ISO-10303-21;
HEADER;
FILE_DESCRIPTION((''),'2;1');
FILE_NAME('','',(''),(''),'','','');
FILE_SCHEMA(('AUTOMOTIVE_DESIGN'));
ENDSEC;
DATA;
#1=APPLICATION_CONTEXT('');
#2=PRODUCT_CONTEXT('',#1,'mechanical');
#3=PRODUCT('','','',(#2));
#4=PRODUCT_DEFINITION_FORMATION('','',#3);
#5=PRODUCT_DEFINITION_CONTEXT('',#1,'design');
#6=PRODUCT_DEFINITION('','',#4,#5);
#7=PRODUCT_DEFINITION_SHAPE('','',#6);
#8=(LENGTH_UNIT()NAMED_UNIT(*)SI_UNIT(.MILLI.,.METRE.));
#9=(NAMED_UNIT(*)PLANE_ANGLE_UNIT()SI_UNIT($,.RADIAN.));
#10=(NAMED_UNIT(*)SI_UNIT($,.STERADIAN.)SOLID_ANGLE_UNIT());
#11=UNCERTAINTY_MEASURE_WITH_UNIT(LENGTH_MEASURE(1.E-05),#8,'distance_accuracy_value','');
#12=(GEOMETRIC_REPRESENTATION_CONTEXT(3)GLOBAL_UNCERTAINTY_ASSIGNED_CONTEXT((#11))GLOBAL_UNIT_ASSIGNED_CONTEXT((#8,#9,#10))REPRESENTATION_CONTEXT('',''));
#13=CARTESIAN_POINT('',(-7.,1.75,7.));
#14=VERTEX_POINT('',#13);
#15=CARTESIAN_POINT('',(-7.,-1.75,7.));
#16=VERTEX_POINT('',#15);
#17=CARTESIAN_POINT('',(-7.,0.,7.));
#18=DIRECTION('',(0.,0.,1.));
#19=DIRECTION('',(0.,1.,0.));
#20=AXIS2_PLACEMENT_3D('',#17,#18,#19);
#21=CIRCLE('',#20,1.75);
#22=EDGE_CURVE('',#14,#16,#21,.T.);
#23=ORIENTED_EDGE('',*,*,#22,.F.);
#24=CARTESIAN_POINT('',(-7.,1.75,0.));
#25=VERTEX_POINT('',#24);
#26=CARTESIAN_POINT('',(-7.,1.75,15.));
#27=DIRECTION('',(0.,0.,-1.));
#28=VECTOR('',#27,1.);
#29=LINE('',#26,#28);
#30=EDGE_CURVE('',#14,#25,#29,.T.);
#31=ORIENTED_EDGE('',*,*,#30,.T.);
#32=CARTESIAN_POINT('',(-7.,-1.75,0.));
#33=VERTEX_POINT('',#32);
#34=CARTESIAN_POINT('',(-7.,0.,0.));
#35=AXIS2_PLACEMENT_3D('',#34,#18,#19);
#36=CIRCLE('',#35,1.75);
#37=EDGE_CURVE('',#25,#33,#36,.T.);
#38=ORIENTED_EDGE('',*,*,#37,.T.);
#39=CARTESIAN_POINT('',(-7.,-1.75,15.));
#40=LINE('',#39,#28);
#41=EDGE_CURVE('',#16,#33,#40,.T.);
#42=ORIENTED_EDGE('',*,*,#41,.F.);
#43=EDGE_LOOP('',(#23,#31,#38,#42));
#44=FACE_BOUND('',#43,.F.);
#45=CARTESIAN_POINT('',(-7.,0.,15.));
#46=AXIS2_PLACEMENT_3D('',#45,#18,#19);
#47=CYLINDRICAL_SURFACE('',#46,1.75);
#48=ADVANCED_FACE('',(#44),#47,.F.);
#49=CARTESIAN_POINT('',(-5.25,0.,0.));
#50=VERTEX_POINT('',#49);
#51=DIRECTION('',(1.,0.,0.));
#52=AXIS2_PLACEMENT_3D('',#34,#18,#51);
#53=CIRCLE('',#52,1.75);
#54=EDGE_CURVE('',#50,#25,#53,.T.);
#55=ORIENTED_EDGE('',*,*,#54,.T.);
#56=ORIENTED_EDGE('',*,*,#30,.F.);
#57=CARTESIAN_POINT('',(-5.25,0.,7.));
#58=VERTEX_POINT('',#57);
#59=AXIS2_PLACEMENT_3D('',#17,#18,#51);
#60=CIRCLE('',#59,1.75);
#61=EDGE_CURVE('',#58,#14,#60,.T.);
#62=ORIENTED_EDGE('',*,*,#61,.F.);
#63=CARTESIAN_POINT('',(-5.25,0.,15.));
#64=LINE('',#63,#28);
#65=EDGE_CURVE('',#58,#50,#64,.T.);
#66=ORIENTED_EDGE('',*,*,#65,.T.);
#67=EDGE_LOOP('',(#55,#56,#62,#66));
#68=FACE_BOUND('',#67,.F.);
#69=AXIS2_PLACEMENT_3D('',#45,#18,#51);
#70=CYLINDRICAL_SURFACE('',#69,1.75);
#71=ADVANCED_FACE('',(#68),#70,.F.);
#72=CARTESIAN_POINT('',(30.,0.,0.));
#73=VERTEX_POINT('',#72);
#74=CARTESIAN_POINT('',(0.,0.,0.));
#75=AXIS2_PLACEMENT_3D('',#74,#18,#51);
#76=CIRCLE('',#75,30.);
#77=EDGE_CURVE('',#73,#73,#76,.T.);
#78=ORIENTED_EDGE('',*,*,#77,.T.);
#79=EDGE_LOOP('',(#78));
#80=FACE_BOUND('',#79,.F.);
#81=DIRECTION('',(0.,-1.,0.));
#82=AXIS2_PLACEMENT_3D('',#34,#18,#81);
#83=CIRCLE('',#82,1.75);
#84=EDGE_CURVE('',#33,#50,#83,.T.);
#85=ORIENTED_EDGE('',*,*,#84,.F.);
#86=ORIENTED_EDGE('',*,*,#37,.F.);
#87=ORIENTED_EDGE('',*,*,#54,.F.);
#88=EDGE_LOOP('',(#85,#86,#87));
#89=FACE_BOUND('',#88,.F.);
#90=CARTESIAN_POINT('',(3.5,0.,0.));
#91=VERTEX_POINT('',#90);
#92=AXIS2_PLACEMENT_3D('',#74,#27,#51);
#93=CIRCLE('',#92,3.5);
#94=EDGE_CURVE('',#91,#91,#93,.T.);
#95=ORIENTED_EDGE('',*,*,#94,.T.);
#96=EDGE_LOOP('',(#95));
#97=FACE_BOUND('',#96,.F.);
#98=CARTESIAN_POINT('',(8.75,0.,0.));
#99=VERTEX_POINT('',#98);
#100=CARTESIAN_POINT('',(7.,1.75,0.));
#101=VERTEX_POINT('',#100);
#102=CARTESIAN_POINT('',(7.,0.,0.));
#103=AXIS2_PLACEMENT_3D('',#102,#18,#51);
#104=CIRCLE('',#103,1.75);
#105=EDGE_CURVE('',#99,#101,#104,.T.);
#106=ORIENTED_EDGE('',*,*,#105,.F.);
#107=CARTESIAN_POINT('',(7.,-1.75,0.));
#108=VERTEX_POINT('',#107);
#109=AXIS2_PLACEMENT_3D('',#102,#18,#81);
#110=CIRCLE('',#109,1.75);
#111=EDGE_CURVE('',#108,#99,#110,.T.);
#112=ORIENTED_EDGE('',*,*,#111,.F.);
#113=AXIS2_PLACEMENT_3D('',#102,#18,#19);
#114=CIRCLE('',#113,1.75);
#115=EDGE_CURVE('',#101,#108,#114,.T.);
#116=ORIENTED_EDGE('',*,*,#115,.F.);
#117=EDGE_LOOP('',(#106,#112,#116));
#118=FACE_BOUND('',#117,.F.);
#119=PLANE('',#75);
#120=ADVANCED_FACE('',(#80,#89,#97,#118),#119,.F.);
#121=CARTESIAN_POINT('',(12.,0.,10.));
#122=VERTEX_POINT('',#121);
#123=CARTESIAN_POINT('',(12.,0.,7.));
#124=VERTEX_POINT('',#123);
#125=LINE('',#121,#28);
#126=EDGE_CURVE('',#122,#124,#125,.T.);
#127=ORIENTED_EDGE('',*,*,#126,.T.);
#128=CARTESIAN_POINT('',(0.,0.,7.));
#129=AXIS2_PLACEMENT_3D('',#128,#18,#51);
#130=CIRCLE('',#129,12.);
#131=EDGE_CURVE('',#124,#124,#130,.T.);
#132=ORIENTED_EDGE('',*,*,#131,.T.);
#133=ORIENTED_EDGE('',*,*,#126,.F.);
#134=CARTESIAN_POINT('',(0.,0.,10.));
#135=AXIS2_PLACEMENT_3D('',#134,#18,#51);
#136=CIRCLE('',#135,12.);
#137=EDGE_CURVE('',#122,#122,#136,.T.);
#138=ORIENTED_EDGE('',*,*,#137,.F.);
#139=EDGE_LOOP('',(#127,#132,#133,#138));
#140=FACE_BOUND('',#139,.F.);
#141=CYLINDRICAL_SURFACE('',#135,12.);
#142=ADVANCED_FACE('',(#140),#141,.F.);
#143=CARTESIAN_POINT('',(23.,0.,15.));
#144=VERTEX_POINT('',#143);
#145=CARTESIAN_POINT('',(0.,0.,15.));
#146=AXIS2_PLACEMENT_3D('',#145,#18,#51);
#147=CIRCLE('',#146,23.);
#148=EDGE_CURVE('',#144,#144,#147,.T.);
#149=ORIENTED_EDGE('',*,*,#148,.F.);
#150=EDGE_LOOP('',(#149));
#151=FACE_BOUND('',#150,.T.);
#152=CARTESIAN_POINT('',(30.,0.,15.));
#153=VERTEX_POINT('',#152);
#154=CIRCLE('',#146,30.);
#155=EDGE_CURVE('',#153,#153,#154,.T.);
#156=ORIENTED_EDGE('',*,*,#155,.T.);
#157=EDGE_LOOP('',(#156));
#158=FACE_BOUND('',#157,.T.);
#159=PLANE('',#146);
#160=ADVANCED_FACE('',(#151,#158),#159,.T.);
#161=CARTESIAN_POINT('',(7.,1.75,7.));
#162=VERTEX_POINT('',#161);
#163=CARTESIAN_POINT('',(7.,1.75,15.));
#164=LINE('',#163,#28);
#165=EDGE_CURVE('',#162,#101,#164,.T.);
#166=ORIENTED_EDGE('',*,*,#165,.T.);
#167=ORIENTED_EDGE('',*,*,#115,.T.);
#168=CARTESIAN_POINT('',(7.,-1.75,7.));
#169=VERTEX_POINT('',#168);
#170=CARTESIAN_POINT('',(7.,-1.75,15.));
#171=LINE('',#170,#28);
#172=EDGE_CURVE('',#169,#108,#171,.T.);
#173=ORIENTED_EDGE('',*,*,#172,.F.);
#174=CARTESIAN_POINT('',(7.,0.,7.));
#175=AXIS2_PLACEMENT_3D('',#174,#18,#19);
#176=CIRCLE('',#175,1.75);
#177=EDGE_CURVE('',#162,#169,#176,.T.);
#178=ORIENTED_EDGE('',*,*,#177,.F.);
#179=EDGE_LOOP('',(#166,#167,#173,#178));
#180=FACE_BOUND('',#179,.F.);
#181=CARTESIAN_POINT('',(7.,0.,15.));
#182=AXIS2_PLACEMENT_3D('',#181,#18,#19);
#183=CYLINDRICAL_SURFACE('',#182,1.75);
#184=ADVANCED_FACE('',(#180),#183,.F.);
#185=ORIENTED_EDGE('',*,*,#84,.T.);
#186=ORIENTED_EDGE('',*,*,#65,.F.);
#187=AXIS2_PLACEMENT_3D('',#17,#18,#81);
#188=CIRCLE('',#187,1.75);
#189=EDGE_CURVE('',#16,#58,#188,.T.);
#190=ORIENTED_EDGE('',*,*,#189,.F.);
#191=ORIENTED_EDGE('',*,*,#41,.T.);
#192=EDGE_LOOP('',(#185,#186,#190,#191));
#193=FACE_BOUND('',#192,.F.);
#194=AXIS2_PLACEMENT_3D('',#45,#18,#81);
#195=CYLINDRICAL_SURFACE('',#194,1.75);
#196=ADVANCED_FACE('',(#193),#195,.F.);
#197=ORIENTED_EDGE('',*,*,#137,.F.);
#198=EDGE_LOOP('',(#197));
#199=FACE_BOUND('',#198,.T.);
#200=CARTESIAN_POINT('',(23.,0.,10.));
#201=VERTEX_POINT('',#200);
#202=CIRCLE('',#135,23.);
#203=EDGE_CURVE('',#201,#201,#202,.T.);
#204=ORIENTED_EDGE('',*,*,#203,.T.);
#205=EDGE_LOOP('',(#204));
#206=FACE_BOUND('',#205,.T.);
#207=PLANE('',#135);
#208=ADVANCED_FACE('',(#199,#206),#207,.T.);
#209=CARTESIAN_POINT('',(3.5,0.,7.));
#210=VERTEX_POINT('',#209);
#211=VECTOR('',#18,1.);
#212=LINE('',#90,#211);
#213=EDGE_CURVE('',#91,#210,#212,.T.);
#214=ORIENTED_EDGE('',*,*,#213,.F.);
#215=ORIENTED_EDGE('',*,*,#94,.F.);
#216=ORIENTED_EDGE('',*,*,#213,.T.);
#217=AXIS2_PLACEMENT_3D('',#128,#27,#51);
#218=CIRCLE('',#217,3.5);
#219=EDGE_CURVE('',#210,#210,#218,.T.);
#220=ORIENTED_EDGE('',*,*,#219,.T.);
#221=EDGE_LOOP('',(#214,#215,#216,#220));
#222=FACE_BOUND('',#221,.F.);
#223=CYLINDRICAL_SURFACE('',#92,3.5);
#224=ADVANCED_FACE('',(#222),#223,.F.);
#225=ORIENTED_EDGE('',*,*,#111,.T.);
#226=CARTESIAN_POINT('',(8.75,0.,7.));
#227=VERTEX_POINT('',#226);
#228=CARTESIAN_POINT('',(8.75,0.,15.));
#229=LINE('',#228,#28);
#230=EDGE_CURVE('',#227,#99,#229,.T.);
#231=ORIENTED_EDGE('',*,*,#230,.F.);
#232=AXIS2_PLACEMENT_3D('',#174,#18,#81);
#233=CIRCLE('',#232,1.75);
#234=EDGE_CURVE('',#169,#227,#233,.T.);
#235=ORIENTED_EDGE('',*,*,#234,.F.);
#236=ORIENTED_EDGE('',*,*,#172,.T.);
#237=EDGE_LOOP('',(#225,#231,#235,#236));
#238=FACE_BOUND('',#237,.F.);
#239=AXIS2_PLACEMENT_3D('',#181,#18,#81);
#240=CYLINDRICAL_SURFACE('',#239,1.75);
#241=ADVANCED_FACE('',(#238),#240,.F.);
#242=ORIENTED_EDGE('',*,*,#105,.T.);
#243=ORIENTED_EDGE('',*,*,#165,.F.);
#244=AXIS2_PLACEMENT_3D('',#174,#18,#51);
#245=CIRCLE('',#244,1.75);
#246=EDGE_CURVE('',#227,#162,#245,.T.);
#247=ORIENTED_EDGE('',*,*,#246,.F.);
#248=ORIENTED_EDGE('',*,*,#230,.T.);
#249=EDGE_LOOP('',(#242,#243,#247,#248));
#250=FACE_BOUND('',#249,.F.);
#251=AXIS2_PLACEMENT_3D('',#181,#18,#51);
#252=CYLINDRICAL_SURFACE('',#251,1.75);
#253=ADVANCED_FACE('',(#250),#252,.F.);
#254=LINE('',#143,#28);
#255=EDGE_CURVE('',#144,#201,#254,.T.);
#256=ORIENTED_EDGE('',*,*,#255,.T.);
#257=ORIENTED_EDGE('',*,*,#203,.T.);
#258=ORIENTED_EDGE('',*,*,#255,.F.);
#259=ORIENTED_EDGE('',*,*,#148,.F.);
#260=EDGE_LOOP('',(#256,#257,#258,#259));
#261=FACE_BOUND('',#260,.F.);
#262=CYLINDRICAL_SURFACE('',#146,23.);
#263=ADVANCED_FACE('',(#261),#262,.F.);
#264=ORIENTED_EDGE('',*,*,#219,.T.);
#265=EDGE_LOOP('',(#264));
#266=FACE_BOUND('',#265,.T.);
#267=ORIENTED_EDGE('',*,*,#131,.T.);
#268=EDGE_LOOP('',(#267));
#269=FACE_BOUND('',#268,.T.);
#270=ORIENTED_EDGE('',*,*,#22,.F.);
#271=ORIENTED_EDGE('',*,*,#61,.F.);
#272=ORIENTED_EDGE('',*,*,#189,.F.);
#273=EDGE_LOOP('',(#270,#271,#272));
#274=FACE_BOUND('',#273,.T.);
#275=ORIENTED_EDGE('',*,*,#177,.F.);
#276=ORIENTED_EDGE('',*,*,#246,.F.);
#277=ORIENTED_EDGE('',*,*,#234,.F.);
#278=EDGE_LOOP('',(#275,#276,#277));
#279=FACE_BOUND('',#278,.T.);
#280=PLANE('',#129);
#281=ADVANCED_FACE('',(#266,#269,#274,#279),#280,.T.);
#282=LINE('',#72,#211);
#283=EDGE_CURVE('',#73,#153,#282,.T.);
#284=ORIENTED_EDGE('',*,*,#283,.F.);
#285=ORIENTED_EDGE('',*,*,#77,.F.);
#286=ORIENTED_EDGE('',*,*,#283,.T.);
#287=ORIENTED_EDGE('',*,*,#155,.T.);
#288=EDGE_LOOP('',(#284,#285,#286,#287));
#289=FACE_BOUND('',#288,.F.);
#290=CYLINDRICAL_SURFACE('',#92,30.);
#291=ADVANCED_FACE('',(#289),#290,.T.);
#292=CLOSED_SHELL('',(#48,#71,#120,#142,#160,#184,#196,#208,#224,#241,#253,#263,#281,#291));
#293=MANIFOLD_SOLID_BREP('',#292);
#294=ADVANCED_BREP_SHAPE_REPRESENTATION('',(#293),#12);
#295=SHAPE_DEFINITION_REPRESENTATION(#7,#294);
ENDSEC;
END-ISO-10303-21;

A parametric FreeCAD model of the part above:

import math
import FreeCAD as App
import Part
import Sketcher
Q = App.Units.Quantity

doc = App.newDocument("Part")
params = doc.addObject("Spreadsheet::Sheet", "Params")
for row, (alias, value) in enumerate([
    ("sketch1_diameter", "60 mm"),
    ("pad1_length", "15 mm"),
    ("sketch2_radius", "1.75 mm"),
    ("pocket1_length", "25 mm"),
    ("sketch3_diameter", "46 mm"),
    ("pocket2_length", "5 mm"),
    ("sketch4_diameter", "24 mm"),
    ("pocket3_length", "3 mm"),
    ("sketch5_diameter", "7 mm"),
    ("pocket4_length", "25 mm"),
], start=1):
    params.set(f"A{row}", alias)
    params.set(f"B{row}", "=" + value)
    params.setAlias(f"B{row}", alias)

body = doc.addObject("PartDesign::Body", "Body")

sketch1 = body.newObject("Sketcher::SketchObject", "Sketch")
sketch1.AttachmentSupport = (doc.getObject("XY_Plane"), [""])
sketch1.MapMode = "FlatFace"
sketch1.addGeometry(Part.Circle(App.Vector(0, 0, 0), App.Vector(0, 0, 1), 30), False)
sketch1.addConstraint(Sketcher.Constraint("Coincident", 0, 3, -1, 1))
sketch1.addConstraint(Sketcher.Constraint("Diameter", 0, Q("60 mm")))
sketch1.setExpression("Constraints[1]", "Params.sketch1_diameter")
pad1 = body.newObject("PartDesign::Pad", "Pad")
pad1.Profile = sketch1
pad1.setExpression("Length", "Params.pad1_length")

sketch2 = body.newObject("Sketcher::SketchObject", "Sketch001")
sketch2.AttachmentSupport = (doc.getObject("XY_Plane"), [""])
sketch2.MapMode = "FlatFace"
sketch2.AttachmentOffset = App.Placement(App.Vector(0, 0, 15), App.Rotation())
sketch2.addGeometry(Part.ArcOfCircle(Part.Circle(App.Vector(-7, 0, 0), App.Vector(0, 0, 1), 1.8), math.radians(0), math.radians(90)), False)
sketch2.addGeometry(Part.ArcOfCircle(Part.Circle(App.Vector(-7, 0, 0), App.Vector(0, 0, 1), 1.8), math.radians(90), math.radians(270)), False)
sketch2.addGeometry(Part.ArcOfCircle(Part.Circle(App.Vector(-7, 0, 0), App.Vector(0, 0, 1), 1.8), math.radians(-90), math.radians(0)), False)
sketch2.addGeometry(Part.ArcOfCircle(Part.Circle(App.Vector(7, 0, 0), App.Vector(0, 0, 1), 1.8), math.radians(90), math.radians(270)), False)
sketch2.addGeometry(Part.ArcOfCircle(Part.Circle(App.Vector(7, 0, 0), App.Vector(0, 0, 1), 1.8), math.radians(-90), math.radians(0)), False)
sketch2.addGeometry(Part.ArcOfCircle(Part.Circle(App.Vector(7, 0, 0), App.Vector(0, 0, 1), 1.8), math.radians(0), math.radians(90)), False)
sketch2.addConstraint(Sketcher.Constraint("Tangent", 0, 2, 1, 1))
sketch2.addConstraint(Sketcher.Constraint("Tangent", 1, 2, 2, 1))
sketch2.addConstraint(Sketcher.Constraint("Tangent", 2, 2, 0, 1))
sketch2.addConstraint(Sketcher.Constraint("Tangent", 3, 2, 4, 1))
sketch2.addConstraint(Sketcher.Constraint("Tangent", 4, 2, 5, 1))
sketch2.addConstraint(Sketcher.Constraint("Tangent", 5, 2, 3, 1))
sketch2.addConstraint(Sketcher.Constraint("Equal", 2, 3))
sketch2.addConstraint(Sketcher.Constraint("Symmetric", 0, 3, 3, 3, -1, 1))
sketch2.addConstraint(Sketcher.Constraint("Symmetric", 1, 2, 3, 2, -2))
sketch2.addConstraint(Sketcher.Constraint("PointOnObject", 2, 2, -1))
sketch2.addConstraint(Sketcher.Constraint("PointOnObject", 4, 2, -1))
sketch2.addConstraint(Sketcher.Constraint("Vertical", 2, 3, 0, 2))
sketch2.addConstraint(Sketcher.Constraint("Vertical", 0, 2, 1, 2))
sketch2.addConstraint(Sketcher.Constraint("Vertical", 3, 2, 5, 2))
sketch2.addConstraint(Sketcher.Constraint("Radius", 0, Q("1.75 mm")))
sketch2.addConstraint(Sketcher.Constraint("DistanceX", 0, 3, -1, 1, Q("7 mm")))
sketch2.setExpression("Constraints[14]", "Params.sketch2_radius")
pocket1 = body.newObject("PartDesign::Pocket", "Pocket")
pocket1.Profile = sketch2
pocket1.setExpression("Length", "Params.pocket1_length")

sketch3 = body.newObject("Sketcher::SketchObject", "Sketch002")
sketch3.AttachmentSupport = (doc.getObject("XY_Plane"), [""])
sketch3.MapMode = "FlatFace"
sketch3.AttachmentOffset = App.Placement(App.Vector(0, 0, 15), App.Rotation())
sketch3.addGeometry(Part.Circle(App.Vector(0, 0, 0), App.Vector(0, 0, 1), 23), False)
sketch3.addConstraint(Sketcher.Constraint("Coincident", 0, 3, -1, 1))
sketch3.addConstraint(Sketcher.Constraint("Diameter", 0, Q("46 mm")))
sketch3.setExpression("Constraints[1]", "Params.sketch3_diameter")
pocket2 = body.newObject("PartDesign::Pocket", "Pocket001")
pocket2.Profile = sketch3
pocket2.setExpression("Length", "Params.pocket2_length")

sketch4 = body.newObject("Sketcher::SketchObject", "Sketch003")
sketch4.AttachmentSupport = (doc.getObject("XY_Plane"), [""])
sketch4.MapMode = "FlatFace"
sketch4.AttachmentOffset = App.Placement(App.Vector(0, 0, 10), App.Rotation())
sketch4.addGeometry(Part.Circle(App.Vector(0, 0, 0), App.Vector(0, 0, 1), 12), False)
sketch4.addConstraint(Sketcher.Constraint("Coincident", 0, 3, -1, 1))
sketch4.addConstraint(Sketcher.Constraint("Diameter", 0, Q("24 mm")))
sketch4.setExpression("Constraints[1]", "Params.sketch4_diameter")
pocket3 = body.newObject("PartDesign::Pocket", "Pocket002")
pocket3.Profile = sketch4
pocket3.setExpression("Length", "Params.pocket3_length")

sketch5 = body.newObject("Sketcher::SketchObject", "Sketch004")
sketch5.AttachmentSupport = (doc.getObject("XY_Plane"), [""])
sketch5.MapMode = "FlatFace"
sketch5.addGeometry(Part.Circle(App.Vector(0, 0, 0), App.Vector(0, 0, 1), 3.5), False)
sketch5.addConstraint(Sketcher.Constraint("Coincident", 0, 3, -1, 1))
sketch5.addConstraint(Sketcher.Constraint("Diameter", 0, Q("7 mm")))
sketch5.setExpression("Constraints[1]", "Params.sketch5_diameter")
pocket4 = body.newObject("PartDesign::Pocket", "Pocket003")
pocket4.Profile = sketch5
pocket4.setExpression("Length", "Params.pocket4_length")
pocket4.Reversed = True

doc.recompute()
